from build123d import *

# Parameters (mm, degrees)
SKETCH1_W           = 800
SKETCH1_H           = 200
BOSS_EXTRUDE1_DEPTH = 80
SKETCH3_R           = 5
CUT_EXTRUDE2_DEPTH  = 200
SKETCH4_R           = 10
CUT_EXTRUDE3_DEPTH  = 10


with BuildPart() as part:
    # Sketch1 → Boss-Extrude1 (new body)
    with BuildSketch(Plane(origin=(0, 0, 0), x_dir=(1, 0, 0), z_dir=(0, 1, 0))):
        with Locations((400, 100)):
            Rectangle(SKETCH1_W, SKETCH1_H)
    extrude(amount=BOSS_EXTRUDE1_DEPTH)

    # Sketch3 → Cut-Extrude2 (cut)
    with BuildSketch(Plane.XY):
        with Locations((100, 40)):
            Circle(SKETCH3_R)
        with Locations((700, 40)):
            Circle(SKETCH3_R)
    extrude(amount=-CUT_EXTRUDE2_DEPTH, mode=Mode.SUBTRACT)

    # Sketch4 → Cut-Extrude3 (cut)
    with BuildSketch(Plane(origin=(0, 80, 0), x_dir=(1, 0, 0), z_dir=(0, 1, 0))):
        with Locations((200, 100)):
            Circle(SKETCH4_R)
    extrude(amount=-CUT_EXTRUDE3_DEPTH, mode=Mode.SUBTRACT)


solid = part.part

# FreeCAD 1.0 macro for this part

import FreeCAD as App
import Part
import Sketcher

V = App.Vector

doc = App.newDocument("Part")
params = doc.addObject("Spreadsheet::Sheet", "Params")
for row, (alias, value) in enumerate([
    ("sketch1_width", "800 mm"),
    ("sketch1_height", "200 mm"),
    ("pad1_length", "80 mm"),
    ("sketch2_diameter", "10 mm"),
    ("pocket1_length", "200 mm"),
    ("sketch3_diameter", "20 mm"),
    ("pocket2_length", "10 mm"),
], start=1):
    params.set(f"A{row}", alias)
    params.set(f"B{row}", "=" + value)
    params.setAlias(f"B{row}", alias)

body = doc.addObject("PartDesign::Body", "Body")

# Sketch on XZ plane
sketch1 = body.newObject("Sketcher::SketchObject", "Sketch")
sketch1.AttachmentSupport = (doc.getObject("XZ_Plane"), [""])
sketch1.MapMode = "FlatFace"
sketch1.addGeometry(Part.LineSegment(V(0, -200, 0), V(0, 0, 0)), False)
sketch1.addGeometry(Part.LineSegment(V(0, 0, 0), V(800, 0, 0)), False)
sketch1.addGeometry(Part.LineSegment(V(800, 0, 0), V(800, -200, 0)), False)
sketch1.addGeometry(Part.LineSegment(V(800, -200, 0), V(0, -200, 0)), False)
sketch1.addConstraint(Sketcher.Constraint("Coincident", 0, 2, 1, 1))
sketch1.addConstraint(Sketcher.Constraint("Coincident", 1, 2, 2, 1))
sketch1.addConstraint(Sketcher.Constraint("Coincident", 2, 2, 3, 1))
sketch1.addConstraint(Sketcher.Constraint("Coincident", 3, 2, 0, 1))
sketch1.addConstraint(Sketcher.Constraint("Vertical", 0))
sketch1.addConstraint(Sketcher.Constraint("Horizontal", 1))
sketch1.addConstraint(Sketcher.Constraint("Vertical", 2))
sketch1.addConstraint(Sketcher.Constraint("Horizontal", 3))
sketch1.addConstraint(Sketcher.Constraint("Coincident", 0, 2, -1, 1))
sketch1.addConstraint(Sketcher.Constraint("DistanceX", 1, 1, 1, 2, 800.0))
sketch1.addConstraint(Sketcher.Constraint("DistanceY", 0, 1, 0, 2, 200.0))
sketch1.setExpression("Constraints[9]", "Params.sketch1_width")
sketch1.setExpression("Constraints[10]", "Params.sketch1_height")
pad1 = body.newObject("PartDesign::Pad", "Pad")
pad1.Profile = sketch1
pad1.setExpression("Length", "Params.pad1_length")
pad1.Reversed = True

# Sketch on XY plane
sketch2 = body.newObject("Sketcher::SketchObject", "Sketch001")
sketch2.AttachmentSupport = (doc.getObject("XY_Plane"), [""])
sketch2.MapMode = "FlatFace"
sketch2.addGeometry(Part.Circle(V(100, 40, 0), V(0, 0, 1), 5), False)
sketch2.addGeometry(Part.Circle(V(700, 40, 0), V(0, 0, 1), 5), False)
sketch2.addConstraint(Sketcher.Constraint("Equal", 0, 1))
sketch2.addConstraint(Sketcher.Constraint("Horizontal", 0, 3, 1, 3))
sketch2.addConstraint(Sketcher.Constraint("Diameter", 0, 10.0))
sketch2.addConstraint(Sketcher.Constraint("DistanceX", -1, 1, 0, 3, 100.0))
sketch2.addConstraint(Sketcher.Constraint("DistanceY", -1, 1, 0, 3, 40.0))
sketch2.addConstraint(Sketcher.Constraint("DistanceX", -1, 1, 1, 3, 700.0))
sketch2.setExpression("Constraints[2]", "Params.sketch2_diameter")
pocket1 = body.newObject("PartDesign::Pocket", "Pocket")
pocket1.Profile = sketch2
pocket1.setExpression("Length", "Params.pocket1_length")

# Sketch on XZ plane
sketch3 = body.newObject("Sketcher::SketchObject", "Sketch002")
sketch3.AttachmentSupport = (doc.getObject("XZ_Plane"), [""])
sketch3.MapMode = "FlatFace"
sketch3.AttachmentOffset = App.Placement(V(0, 0, -80), App.Rotation())
sketch3.addGeometry(Part.Circle(V(200, -100, 0), V(0, 0, 1), 10), False)
sketch3.addConstraint(Sketcher.Constraint("Diameter", 0, 20.0))
sketch3.addConstraint(Sketcher.Constraint("DistanceX", -1, 1, 0, 3, 200.0))
sketch3.addConstraint(Sketcher.Constraint("DistanceY", 0, 3, -1, 1, 100.0))
sketch3.setExpression("Constraints[0]", "Params.sketch3_diameter")
pocket2 = body.newObject("PartDesign::Pocket", "Pocket001")
pocket2.Profile = sketch3
pocket2.setExpression("Length", "Params.pocket2_length")
pocket2.Reversed = True

doc.recompute()
